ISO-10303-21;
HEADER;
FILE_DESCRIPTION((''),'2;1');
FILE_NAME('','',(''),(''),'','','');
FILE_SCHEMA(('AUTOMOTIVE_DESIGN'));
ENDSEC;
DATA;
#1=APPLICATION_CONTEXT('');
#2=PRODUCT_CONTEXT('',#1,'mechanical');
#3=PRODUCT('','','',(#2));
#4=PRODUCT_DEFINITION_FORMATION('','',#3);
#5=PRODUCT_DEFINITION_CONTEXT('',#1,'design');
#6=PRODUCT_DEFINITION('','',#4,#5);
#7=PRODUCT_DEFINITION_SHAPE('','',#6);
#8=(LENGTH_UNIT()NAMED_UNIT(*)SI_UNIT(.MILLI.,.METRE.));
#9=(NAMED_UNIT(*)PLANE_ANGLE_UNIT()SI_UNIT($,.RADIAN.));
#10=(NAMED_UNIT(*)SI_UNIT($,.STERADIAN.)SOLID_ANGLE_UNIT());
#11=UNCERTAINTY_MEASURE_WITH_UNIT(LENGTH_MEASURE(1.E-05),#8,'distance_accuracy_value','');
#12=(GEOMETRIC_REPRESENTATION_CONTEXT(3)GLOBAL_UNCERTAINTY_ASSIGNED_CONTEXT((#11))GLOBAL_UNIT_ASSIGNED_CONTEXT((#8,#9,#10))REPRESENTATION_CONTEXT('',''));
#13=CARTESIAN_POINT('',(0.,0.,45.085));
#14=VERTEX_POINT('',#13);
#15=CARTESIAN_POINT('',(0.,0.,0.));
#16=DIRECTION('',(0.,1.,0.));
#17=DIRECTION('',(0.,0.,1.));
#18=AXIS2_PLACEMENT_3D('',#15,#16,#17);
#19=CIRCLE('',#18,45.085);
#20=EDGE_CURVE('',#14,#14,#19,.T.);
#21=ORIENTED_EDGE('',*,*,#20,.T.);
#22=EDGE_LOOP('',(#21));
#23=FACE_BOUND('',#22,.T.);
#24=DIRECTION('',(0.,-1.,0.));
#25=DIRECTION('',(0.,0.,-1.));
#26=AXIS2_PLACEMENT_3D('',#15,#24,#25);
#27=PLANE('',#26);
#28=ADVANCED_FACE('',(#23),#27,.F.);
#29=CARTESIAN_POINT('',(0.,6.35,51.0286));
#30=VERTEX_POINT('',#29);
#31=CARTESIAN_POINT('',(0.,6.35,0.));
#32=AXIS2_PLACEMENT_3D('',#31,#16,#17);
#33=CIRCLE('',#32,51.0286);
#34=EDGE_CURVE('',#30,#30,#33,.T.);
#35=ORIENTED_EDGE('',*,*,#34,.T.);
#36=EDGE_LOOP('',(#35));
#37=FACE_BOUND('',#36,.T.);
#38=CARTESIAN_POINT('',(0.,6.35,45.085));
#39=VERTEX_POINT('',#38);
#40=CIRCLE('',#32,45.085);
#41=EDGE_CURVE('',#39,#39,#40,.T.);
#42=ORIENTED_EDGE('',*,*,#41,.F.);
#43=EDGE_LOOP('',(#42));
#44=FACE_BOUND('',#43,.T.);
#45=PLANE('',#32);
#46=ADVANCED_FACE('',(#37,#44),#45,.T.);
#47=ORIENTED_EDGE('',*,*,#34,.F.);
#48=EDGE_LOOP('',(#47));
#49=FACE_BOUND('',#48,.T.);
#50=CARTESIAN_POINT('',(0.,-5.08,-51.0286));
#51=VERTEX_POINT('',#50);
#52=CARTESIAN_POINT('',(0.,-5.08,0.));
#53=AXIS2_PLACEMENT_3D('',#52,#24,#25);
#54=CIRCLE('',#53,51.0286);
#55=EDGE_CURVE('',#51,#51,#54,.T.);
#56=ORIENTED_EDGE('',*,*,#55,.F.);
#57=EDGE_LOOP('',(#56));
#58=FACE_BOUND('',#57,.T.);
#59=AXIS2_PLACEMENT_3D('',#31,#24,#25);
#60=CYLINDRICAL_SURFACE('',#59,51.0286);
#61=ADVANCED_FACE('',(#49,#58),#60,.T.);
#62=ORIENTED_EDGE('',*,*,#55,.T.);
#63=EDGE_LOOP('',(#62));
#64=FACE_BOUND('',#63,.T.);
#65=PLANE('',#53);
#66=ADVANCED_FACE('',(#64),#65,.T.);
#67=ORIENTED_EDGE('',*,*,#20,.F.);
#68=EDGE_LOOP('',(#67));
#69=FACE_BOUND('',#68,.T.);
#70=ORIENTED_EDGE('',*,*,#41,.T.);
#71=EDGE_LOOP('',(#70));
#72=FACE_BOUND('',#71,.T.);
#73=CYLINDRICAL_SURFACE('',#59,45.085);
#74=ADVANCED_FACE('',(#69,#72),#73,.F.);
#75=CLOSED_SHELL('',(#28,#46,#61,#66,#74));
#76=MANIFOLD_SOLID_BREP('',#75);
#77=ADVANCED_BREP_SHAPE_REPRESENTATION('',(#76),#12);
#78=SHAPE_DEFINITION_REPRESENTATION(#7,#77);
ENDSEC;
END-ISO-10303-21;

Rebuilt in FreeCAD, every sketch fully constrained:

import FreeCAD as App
import Part
import Sketcher
Q = App.Units.Quantity

doc = App.newDocument("Part")
body = doc.addObject("PartDesign::Body", "Body")

# Sketch on XZ plane
sketch1 = body.newObject("Sketcher::SketchObject", "Sketch")
sketch1.AttachmentSupport = (doc.getObject("XZ_Plane"), [""])
sketch1.MapMode = "FlatFace"
sketch1.addGeometry([
    Part.Circle(App.Vector(0, 0, 0), App.Vector(0, 0, 1), 51),
    Part.Circle(App.Vector(0, 0, 0), App.Vector(0, 0, 1), 45),
], False)
sketch1.addConstraint([
    Sketcher.Constraint("Coincident", 0, 3, -1, 1),
    Sketcher.Constraint("Coincident", 1, 3, -1, 1),
    Sketcher.Constraint("Diameter", 1, Q("3.55 in")),
    Sketcher.Constraint("Diameter", 0, Q("4.018 in")),
])
pad1 = body.newObject("PartDesign::Pad", "Pad")
pad1.Profile = sketch1
pad1.Length = Q("0.25 in")
pad1.Reversed = True

# Sketch on XZ plane
sketch2 = body.newObject("Sketcher::SketchObject", "Sketch001")
sketch2.AttachmentSupport = (doc.getObject("XZ_Plane"), [""])
sketch2.MapMode = "FlatFace"
sketch2.addGeometry(Part.Circle(App.Vector(0, 0, 0), App.Vector(0, 0, 1), 51), False)
sketch2.addConstraint([
    Sketcher.Constraint("Coincident", 0, 3, -1, 1),
    Sketcher.Constraint("Diameter", 0, Q("4.018 in")),
])
pad2 = body.newObject("PartDesign::Pad", "Pad001")
pad2.Profile = sketch2
pad2.Length = Q("0.2 in")

doc.recompute()
